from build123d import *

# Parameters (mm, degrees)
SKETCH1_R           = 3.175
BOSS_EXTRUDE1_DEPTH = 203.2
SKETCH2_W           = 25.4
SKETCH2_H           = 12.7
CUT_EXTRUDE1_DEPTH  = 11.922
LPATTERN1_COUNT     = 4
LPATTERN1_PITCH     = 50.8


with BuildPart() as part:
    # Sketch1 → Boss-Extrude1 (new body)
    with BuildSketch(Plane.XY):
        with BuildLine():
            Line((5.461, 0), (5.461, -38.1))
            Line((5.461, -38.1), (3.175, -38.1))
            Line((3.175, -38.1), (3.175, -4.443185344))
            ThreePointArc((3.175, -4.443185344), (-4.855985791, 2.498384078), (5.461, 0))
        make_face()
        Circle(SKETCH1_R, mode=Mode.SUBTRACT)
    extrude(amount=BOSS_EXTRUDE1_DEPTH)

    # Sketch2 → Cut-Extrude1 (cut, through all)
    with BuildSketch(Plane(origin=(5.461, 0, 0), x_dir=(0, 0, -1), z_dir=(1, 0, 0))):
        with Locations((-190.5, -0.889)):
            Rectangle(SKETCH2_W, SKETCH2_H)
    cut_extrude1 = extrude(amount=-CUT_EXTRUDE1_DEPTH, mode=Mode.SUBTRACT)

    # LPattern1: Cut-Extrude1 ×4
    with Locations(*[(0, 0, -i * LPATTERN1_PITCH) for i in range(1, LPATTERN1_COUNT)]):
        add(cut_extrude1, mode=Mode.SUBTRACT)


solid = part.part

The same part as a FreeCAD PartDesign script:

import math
import FreeCAD as App
import Part
import Sketcher
Q = App.Units.Quantity

doc = App.newDocument("Part")
body = doc.addObject("PartDesign::Body", "Body")

# Sketch on XY plane
sketch1 = doc.addObject("Sketcher::SketchObject", "Sketch")
body.addObject(sketch1)
sketch1.AttachmentSupport = (doc.XY_Plane, [""])
sketch1.MapMode = "FlatFace"
sketch1.addGeometry(Part.LineSegment(App.Vector(5.461, -38.1, 0), App.Vector(5.461, 0, 0)), False)
sketch1.addGeometry(Part.ArcOfCircle(Part.Circle(App.Vector(0, 0, 0), App.Vector(0, 0, 1), 5.461), math.radians(0), math.radians(305.548744)), False)
sketch1.addGeometry(Part.LineSegment(App.Vector(3.175, -4.443185, 0), App.Vector(3.175, -38.1, 0)), False)
sketch1.addGeometry(Part.LineSegment(App.Vector(3.175, -38.1, 0), App.Vector(5.461, -38.1, 0)), False)
sketch1.addGeometry(Part.Circle(App.Vector(0, 0, 0), App.Vector(0, 0, 1), 3.175), False)
sketch1.addConstraint(Sketcher.Constraint("Tangent", 0, 2, 1, 1))
sketch1.addConstraint(Sketcher.Constraint("Coincident", 1, 2, 2, 1))
sketch1.addConstraint(Sketcher.Constraint("Coincident", 2, 2, 3, 1))
sketch1.addConstraint(Sketcher.Constraint("Coincident", 3, 2, 0, 1))
sketch1.addConstraint(Sketcher.Constraint("Vertical", 0))
sketch1.addConstraint(Sketcher.Constraint("Vertical", 2))
sketch1.addConstraint(Sketcher.Constraint("Horizontal", 3))
sketch1.addConstraint(Sketcher.Constraint("Coincident", 1, 3, -1, 1))
sketch1.addConstraint(Sketcher.Constraint("Coincident", 4, 3, -1, 1))
sketch1.addConstraint(Sketcher.Constraint("Diameter", 4, Q("0.25 in")))
sketch1.addConstraint(Sketcher.Constraint("DistanceY", 0, 1, 0, 2, Q("1.5 in")))
sketch1.addConstraint(Sketcher.Constraint("Radius", 1, Q("0.215 in")))
sketch1.addConstraint(Sketcher.Constraint("DistanceX", 3, 1, 3, 2, Q("0.09 in")))
pad1 = doc.addObject("PartDesign::Pad", "Pad")
body.addObject(pad1)
pad1.Profile = sketch1
pad1.Length = Q("8 in")

# Sketch on YZ plane
sketch2 = doc.addObject("Sketcher::SketchObject", "Sketch001")
body.addObject(sketch2)
sketch2.AttachmentSupport = (doc.YZ_Plane, [""])
sketch2.MapMode = "FlatFace"
sketch2.AttachmentOffset = App.Placement(App.Vector(0, 0, 0.215 * 25.4), App.Rotation())
sketch2.addGeometry(Part.LineSegment(App.Vector(5.461, 203.2, 0), App.Vector(-7.239, 203.2, 0)), False)
sketch2.addGeometry(Part.LineSegment(App.Vector(-7.239, 203.2, 0), App.Vector(-7.239, 177.8, 0)), False)
sketch2.addGeometry(Part.LineSegment(App.Vector(-7.239, 177.8, 0), App.Vector(5.461, 177.8, 0)), False)
sketch2.addGeometry(Part.LineSegment(App.Vector(5.461, 177.8, 0), App.Vector(5.461, 203.2, 0)), False)
sketch2.addConstraint(Sketcher.Constraint("Coincident", 0, 2, 1, 1))
sketch2.addConstraint(Sketcher.Constraint("Coincident", 1, 2, 2, 1))
sketch2.addConstraint(Sketcher.Constraint("Coincident", 2, 2, 3, 1))
sketch2.addConstraint(Sketcher.Constraint("Coincident", 3, 2, 0, 1))
sketch2.addConstraint(Sketcher.Constraint("Horizontal", 0))
sketch2.addConstraint(Sketcher.Constraint("Vertical", 1))
sketch2.addConstraint(Sketcher.Constraint("Horizontal", 2))
sketch2.addConstraint(Sketcher.Constraint("Vertical", 3))
sketch2.addConstraint(Sketcher.Constraint("DistanceY", 1, 2, 1, 1, Q("1 in")))
sketch2.addConstraint(Sketcher.Constraint("DistanceX", 0, 2, 0, 1, Q("0.5 in")))
sketch2.addConstraint(Sketcher.Constraint("DistanceY", -1, 1, 0, 2, Q("8 in")))
sketch2.addConstraint(Sketcher.Constraint("DistanceX", 0, 2, -1, 1, Q("0.285 in")))
pocket1 = doc.addObject("PartDesign::Pocket", "Pocket")
body.addObject(pocket1)
pocket1.Profile = sketch2
pocket1.Type = "ThroughAll"
doc.recompute()

linearpattern = doc.addObject("PartDesign::LinearPattern", "LinearPattern")
body.addObject(linearpattern)
linearpattern.Originals = [pocket1]
linearpattern.Direction = (doc.Z_Axis, [""])
linearpattern.Mode = "offset"
linearpattern.Offset = Q("2 in")
linearpattern.Occurrences = 4
linearpattern.Reversed = True
body.Tip = linearpattern

doc.recompute()
